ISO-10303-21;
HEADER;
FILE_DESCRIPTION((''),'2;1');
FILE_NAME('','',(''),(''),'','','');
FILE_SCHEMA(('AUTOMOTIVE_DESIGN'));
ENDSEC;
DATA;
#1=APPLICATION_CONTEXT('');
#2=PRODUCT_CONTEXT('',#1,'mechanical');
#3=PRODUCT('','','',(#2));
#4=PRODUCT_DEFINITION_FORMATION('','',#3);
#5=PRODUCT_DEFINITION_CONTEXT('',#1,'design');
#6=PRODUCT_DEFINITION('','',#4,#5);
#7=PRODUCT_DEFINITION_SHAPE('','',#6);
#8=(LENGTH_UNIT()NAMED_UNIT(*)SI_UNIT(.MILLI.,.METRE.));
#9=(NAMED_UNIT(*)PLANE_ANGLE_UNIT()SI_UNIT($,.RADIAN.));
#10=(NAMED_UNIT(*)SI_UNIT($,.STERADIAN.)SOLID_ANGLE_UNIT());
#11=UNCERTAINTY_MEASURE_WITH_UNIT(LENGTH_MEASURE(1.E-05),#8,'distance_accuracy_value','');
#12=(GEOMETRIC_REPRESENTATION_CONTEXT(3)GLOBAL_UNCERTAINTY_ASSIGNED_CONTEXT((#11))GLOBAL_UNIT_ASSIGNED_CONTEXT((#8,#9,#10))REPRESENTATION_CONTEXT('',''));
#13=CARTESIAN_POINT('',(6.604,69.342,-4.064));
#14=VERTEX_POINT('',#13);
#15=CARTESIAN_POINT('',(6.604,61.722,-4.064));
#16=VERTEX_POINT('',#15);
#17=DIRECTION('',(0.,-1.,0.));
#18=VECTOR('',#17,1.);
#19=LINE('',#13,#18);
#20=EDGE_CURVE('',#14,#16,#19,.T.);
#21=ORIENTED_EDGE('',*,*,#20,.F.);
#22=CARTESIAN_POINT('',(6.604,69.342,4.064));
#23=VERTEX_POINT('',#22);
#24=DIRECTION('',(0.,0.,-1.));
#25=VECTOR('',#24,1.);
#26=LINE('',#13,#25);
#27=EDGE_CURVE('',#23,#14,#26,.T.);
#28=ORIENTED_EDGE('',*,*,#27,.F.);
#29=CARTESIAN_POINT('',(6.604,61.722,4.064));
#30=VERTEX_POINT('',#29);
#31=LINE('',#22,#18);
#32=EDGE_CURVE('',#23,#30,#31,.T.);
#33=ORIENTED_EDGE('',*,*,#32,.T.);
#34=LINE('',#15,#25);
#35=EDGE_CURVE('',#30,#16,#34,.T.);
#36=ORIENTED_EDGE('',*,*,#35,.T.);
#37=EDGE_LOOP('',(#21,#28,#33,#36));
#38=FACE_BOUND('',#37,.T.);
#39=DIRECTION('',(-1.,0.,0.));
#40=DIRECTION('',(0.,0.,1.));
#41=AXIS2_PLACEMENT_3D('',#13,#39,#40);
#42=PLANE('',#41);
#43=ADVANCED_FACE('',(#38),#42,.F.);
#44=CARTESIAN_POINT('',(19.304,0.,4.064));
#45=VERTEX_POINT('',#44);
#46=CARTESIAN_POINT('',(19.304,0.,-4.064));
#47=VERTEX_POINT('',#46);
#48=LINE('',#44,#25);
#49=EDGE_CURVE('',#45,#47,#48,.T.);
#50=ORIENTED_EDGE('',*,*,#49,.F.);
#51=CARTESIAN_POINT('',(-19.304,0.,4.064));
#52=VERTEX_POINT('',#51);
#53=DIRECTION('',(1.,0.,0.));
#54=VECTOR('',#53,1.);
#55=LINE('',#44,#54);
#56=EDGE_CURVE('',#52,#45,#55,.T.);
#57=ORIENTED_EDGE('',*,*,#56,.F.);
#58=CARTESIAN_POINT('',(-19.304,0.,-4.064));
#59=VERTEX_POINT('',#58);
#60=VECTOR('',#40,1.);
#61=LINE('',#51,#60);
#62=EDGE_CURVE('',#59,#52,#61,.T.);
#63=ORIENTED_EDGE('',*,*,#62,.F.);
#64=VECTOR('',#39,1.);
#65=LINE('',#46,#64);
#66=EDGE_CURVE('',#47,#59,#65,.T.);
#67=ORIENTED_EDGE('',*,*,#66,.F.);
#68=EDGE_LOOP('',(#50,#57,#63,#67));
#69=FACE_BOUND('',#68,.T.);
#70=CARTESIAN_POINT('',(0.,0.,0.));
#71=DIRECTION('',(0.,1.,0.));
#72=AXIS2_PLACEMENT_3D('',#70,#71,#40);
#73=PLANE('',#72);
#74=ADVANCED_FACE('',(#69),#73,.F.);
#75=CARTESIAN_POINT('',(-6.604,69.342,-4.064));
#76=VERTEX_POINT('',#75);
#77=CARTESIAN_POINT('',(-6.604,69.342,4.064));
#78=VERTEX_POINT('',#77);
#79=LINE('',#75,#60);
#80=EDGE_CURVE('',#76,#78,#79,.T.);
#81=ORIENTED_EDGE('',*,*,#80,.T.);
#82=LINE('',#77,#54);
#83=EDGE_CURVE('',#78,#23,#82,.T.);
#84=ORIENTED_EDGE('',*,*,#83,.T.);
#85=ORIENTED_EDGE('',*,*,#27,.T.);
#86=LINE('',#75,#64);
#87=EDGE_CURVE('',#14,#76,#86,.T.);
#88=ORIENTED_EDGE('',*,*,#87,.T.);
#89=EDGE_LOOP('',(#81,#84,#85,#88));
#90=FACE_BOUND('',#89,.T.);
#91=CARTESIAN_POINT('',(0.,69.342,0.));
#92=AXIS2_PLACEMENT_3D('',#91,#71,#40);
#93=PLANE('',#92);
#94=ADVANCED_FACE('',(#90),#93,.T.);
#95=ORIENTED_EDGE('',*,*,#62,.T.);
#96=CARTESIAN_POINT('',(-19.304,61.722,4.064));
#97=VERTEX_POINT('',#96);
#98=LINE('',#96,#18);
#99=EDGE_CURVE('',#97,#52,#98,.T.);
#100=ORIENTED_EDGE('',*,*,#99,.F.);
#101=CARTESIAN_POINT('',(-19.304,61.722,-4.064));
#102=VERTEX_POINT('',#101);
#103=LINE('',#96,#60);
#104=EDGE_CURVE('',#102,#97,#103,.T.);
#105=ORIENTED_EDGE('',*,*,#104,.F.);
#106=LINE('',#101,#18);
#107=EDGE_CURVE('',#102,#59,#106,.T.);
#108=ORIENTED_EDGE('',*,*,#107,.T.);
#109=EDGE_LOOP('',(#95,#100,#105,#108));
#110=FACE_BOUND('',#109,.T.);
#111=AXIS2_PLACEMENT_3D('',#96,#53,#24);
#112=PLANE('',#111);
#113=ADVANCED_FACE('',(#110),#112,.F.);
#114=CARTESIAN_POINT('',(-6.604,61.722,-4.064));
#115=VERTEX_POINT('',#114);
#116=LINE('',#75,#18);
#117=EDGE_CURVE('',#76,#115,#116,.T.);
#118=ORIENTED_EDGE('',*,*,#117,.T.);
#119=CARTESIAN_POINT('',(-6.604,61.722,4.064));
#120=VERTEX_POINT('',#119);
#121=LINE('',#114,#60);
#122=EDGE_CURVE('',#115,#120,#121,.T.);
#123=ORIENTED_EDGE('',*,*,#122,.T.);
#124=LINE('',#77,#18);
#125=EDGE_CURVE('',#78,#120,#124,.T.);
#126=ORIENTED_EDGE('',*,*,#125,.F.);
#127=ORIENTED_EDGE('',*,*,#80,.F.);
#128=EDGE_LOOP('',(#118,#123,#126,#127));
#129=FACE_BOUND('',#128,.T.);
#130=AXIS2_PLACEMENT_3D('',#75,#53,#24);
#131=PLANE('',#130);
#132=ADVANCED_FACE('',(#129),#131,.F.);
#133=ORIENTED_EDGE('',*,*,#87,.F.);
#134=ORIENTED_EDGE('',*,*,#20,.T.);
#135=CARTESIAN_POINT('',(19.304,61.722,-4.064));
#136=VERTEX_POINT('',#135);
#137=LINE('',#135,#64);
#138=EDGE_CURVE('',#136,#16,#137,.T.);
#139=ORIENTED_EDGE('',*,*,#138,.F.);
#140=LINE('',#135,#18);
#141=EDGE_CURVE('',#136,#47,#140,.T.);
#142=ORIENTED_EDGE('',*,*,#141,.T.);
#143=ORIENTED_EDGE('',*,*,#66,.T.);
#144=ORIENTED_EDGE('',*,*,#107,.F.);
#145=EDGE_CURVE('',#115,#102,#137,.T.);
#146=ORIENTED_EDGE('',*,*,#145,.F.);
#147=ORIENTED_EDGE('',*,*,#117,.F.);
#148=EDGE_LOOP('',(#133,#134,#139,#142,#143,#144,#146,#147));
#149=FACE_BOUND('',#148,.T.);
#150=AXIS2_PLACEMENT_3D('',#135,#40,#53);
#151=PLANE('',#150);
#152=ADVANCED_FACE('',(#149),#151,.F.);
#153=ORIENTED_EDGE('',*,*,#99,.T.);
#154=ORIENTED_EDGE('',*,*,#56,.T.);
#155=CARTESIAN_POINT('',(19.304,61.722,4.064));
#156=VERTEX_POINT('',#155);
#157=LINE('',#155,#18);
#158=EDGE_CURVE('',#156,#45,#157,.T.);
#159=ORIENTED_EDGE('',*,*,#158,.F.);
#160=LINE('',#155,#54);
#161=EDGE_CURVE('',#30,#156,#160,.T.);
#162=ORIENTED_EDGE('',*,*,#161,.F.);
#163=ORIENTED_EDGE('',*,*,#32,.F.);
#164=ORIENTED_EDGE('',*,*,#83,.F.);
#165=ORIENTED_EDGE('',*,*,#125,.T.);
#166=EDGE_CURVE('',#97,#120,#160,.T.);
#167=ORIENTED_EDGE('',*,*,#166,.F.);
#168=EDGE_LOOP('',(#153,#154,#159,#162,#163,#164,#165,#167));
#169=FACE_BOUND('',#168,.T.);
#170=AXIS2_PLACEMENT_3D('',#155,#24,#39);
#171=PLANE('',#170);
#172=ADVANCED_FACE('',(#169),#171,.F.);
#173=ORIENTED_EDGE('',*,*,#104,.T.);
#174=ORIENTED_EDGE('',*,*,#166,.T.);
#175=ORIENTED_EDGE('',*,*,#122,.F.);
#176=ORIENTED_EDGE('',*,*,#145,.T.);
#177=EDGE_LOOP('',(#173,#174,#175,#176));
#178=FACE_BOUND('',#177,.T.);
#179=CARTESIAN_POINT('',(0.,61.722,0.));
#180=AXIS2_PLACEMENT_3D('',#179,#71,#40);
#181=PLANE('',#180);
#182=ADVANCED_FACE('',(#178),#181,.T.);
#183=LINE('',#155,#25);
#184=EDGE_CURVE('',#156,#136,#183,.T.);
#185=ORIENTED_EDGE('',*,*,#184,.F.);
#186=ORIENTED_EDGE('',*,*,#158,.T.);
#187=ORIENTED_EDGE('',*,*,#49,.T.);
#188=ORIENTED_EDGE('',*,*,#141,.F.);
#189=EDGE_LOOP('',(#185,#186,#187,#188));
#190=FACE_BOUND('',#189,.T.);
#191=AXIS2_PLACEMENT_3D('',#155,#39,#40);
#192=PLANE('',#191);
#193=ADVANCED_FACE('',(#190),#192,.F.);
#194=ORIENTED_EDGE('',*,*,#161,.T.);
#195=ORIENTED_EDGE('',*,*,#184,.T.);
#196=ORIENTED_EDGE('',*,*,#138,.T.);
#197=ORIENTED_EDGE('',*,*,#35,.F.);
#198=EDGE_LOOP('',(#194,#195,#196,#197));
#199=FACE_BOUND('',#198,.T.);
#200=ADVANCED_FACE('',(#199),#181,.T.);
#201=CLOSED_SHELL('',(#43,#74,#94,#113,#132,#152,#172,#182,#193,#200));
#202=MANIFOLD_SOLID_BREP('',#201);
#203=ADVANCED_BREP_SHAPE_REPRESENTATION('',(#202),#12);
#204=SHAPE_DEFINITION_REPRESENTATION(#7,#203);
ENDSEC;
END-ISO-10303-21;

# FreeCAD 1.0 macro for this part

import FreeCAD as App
import Part
import Sketcher
Q = App.Units.Quantity

doc = App.newDocument("Part")
params = doc.addObject("Spreadsheet::Sheet", "Params")
for row, (alias, value) in enumerate([
    ("sketch1_width", "1.52 in"),
    ("sketch1_height", "0.32 in"),
    ("pad1_length", "2.43 in"),
    ("sketch2_width", "0.52 in"),
    ("sketch2_height", "0.32 in"),
    ("pad2_length", "0.3 in"),
], start=1):
    params.set(f"A{row}", alias)
    params.set(f"B{row}", "=" + value)
    params.setAlias(f"B{row}", alias)

body = doc.addObject("PartDesign::Body", "Body")

sketch1 = body.newObject("Sketcher::SketchObject", "Sketch")
sketch1.AttachmentSupport = (doc.getObject("XZ_Plane"), [""])
sketch1.MapMode = "FlatFace"
sketch1.addGeometry(Part.LineSegment(App.Vector(-19, -4, 0), App.Vector(-19, 4, 0)), False)
sketch1.addGeometry(Part.LineSegment(App.Vector(-19, 4, 0), App.Vector(19, 4, 0)), False)
sketch1.addGeometry(Part.LineSegment(App.Vector(19, 4, 0), App.Vector(19, -4, 0)), False)
sketch1.addGeometry(Part.LineSegment(App.Vector(19, -4, 0), App.Vector(-19, -4, 0)), False)
sketch1.addConstraint(Sketcher.Constraint("Coincident", 0, 2, 1, 1))
sketch1.addConstraint(Sketcher.Constraint("Coincident", 1, 2, 2, 1))
sketch1.addConstraint(Sketcher.Constraint("Coincident", 2, 2, 3, 1))
sketch1.addConstraint(Sketcher.Constraint("Coincident", 3, 2, 0, 1))
sketch1.addConstraint(Sketcher.Constraint("Vertical", 0))
sketch1.addConstraint(Sketcher.Constraint("Horizontal", 1))
sketch1.addConstraint(Sketcher.Constraint("Vertical", 2))
sketch1.addConstraint(Sketcher.Constraint("Horizontal", 3))
sketch1.addConstraint(Sketcher.Constraint("Symmetric", 0, 2, 2, 2, -1, 1))
sketch1.addConstraint(Sketcher.Constraint("DistanceX", 1, 1, 1, 2, Q("1.52 in")))
sketch1.addConstraint(Sketcher.Constraint("DistanceY", 0, 1, 0, 2, Q("0.32 in")))
sketch1.setExpression("Constraints[9]", "Params.sketch1_width")
sketch1.setExpression("Constraints[10]", "Params.sketch1_height")
pad1 = body.newObject("PartDesign::Pad", "Pad")
pad1.Profile = sketch1
pad1.setExpression("Length", "Params.pad1_length")
pad1.Reversed = True

sketch2 = body.newObject("Sketcher::SketchObject", "Sketch001")
sketch2.AttachmentSupport = (doc.getObject("XZ_Plane"), [""])
sketch2.MapMode = "FlatFace"
sketch2.AttachmentOffset = App.Placement(App.Vector(0, 0, -2.43 * 25.4), App.Rotation())
sketch2.addGeometry(Part.LineSegment(App.Vector(-7, -4, 0), App.Vector(-7, 4, 0)), False)
sketch2.addGeometry(Part.LineSegment(App.Vector(-7, 4, 0), App.Vector(7, 4, 0)), False)
sketch2.addGeometry(Part.LineSegment(App.Vector(7, 4, 0), App.Vector(7, -4, 0)), False)
sketch2.addGeometry(Part.LineSegment(App.Vector(7, -4, 0), App.Vector(-7, -4, 0)), False)
sketch2.addConstraint(Sketcher.Constraint("Coincident", 0, 2, 1, 1))
sketch2.addConstraint(Sketcher.Constraint("Coincident", 1, 2, 2, 1))
sketch2.addConstraint(Sketcher.Constraint("Coincident", 2, 2, 3, 1))
sketch2.addConstraint(Sketcher.Constraint("Coincident", 3, 2, 0, 1))
sketch2.addConstraint(Sketcher.Constraint("Vertical", 0))
sketch2.addConstraint(Sketcher.Constraint("Horizontal", 1))
sketch2.addConstraint(Sketcher.Constraint("Vertical", 2))
sketch2.addConstraint(Sketcher.Constraint("Horizontal", 3))
sketch2.addConstraint(Sketcher.Constraint("Symmetric", 0, 2, 2, 2, -1, 1))
sketch2.addConstraint(Sketcher.Constraint("DistanceX", 1, 1, 1, 2, Q("0.52 in")))
sketch2.addConstraint(Sketcher.Constraint("DistanceY", 0, 1, 0, 2, Q("0.32 in")))
sketch2.setExpression("Constraints[9]", "Params.sketch2_width")
sketch2.setExpression("Constraints[10]", "Params.sketch2_height")
pad2 = body.newObject("PartDesign::Pad", "Pad001")
pad2.Profile = sketch2
pad2.setExpression("Length", "Params.pad2_length")
pad2.Reversed = True

doc.recompute()
